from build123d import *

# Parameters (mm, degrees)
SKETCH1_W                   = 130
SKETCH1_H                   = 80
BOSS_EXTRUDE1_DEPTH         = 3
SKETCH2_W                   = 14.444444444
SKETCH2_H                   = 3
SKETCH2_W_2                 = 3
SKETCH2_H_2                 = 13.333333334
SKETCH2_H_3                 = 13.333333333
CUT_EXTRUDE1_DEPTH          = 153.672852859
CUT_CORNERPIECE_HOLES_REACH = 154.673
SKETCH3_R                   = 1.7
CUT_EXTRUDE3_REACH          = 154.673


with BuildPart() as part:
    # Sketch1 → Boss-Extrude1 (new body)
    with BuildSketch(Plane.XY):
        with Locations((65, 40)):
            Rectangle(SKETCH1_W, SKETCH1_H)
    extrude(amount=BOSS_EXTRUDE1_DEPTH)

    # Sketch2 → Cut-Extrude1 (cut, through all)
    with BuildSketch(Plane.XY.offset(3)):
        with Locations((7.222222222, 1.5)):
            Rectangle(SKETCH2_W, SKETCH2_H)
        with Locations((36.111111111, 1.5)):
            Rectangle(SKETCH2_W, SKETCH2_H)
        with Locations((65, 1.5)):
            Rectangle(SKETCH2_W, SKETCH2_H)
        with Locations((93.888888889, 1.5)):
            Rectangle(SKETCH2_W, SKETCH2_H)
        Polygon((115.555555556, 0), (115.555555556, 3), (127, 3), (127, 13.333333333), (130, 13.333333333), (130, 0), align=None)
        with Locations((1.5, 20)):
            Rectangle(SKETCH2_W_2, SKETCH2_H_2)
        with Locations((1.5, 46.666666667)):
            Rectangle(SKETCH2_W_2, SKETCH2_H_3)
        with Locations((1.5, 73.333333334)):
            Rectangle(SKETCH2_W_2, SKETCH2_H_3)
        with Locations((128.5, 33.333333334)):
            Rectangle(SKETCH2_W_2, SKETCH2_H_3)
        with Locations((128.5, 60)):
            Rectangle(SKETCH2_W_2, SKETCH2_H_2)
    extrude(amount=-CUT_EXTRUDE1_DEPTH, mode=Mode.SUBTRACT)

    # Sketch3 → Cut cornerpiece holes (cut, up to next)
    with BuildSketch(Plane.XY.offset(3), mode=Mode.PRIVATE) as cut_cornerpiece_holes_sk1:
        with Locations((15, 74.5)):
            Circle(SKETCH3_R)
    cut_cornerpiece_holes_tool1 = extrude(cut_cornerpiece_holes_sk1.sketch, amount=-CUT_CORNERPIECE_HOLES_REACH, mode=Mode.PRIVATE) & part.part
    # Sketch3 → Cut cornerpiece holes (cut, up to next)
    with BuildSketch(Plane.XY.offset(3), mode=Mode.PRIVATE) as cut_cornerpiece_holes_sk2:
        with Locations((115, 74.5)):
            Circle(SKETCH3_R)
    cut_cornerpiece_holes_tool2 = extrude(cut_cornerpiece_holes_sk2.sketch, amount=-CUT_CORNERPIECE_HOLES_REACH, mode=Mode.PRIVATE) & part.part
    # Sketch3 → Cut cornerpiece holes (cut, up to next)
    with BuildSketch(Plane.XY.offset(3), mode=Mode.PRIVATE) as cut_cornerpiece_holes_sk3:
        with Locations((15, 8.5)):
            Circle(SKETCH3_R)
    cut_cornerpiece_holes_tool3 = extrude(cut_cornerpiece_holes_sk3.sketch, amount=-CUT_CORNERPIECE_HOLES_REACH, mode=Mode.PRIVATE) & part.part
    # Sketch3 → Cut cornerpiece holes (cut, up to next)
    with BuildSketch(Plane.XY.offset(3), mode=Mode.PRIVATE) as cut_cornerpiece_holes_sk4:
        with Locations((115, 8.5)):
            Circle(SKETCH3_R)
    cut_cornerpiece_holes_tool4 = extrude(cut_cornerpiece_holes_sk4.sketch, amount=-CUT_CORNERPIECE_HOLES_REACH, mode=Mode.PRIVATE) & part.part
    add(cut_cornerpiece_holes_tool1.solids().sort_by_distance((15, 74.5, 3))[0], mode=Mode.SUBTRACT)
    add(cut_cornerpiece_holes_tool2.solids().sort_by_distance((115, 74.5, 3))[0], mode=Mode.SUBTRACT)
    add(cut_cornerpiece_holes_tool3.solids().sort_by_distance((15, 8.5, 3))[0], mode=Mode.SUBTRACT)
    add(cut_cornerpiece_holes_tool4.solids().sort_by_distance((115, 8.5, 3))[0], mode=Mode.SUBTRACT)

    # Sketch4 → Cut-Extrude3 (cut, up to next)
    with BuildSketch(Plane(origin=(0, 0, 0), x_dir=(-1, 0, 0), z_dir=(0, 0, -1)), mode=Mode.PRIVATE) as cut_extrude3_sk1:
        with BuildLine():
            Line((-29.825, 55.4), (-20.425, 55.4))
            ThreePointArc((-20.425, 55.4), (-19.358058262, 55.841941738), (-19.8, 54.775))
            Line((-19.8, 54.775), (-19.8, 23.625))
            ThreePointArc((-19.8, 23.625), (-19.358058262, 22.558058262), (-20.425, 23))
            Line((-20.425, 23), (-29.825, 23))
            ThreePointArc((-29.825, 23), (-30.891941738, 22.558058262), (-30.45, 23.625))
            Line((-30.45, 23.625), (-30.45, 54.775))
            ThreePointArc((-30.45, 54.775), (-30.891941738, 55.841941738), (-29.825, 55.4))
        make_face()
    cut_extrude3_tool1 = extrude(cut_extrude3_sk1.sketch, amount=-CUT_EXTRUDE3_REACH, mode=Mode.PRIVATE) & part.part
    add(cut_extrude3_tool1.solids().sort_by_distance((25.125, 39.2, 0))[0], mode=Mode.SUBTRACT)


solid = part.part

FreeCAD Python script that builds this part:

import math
import FreeCAD as App
import Part
import Sketcher

V = App.Vector
Q = App.Units.Quantity


def add_polygon(sketch, points):
    """Adds a closed chain of lines whose ends are joined by coincident constraints."""
    first, n = sketch.GeometryCount, len(points)
    for a, b in zip(points, points[1:] + points[:1]):
        sketch.addGeometry(Part.LineSegment(App.Vector(*a, 0), App.Vector(*b, 0)), False)
    for i in range(n):
        sketch.addConstraint(Sketcher.Constraint("Coincident", first + i, 2, first + (i + 1) % n, 1))

doc = App.newDocument("Part")
body = doc.addObject("PartDesign::Body", "Body")

# Sketch on XY plane
sketch1 = body.newObject("Sketcher::SketchObject", "Sketch")
sketch1.AttachmentSupport = (doc.getObject("XY_Plane"), [""])
sketch1.MapMode = "FlatFace"
add_polygon(sketch1, [(0, 80), (0, 0), (130, 0), (130, 80)])  # lines 0-3
sketch1.addConstraint([
    Sketcher.Constraint("Vertical", 0),
    Sketcher.Constraint("Horizontal", 1),
    Sketcher.Constraint("Vertical", 2),
    Sketcher.Constraint("Horizontal", 3),
    Sketcher.Constraint("Coincident", 0, 2, -1, 1),
    Sketcher.Constraint("DistanceX", 1, 1, 1, 2, Q("130 mm")),
    Sketcher.Constraint("DistanceY", 0, 2, 0, 1, Q("80 mm")),
])
pad1 = body.newObject("PartDesign::Pad", "Pad")
pad1.Profile = sketch1
pad1.Length = 3

# Sketch on XY plane
sketch2 = body.newObject("Sketcher::SketchObject", "Sketch001")
sketch2.AttachmentSupport = (doc.getObject("XY_Plane"), [""])
sketch2.MapMode = "FlatFace"
sketch2.AttachmentOffset = App.Placement(V(0, 0, 3), App.Rotation())
add_polygon(sketch2, [(0, 3), (0, 0), (14.444444, 0), (14.444444, 3)])  # lines 0-3
add_polygon(sketch2, [(28.888889, 3), (28.888889, 0), (43.333333, 0), (43.333333, 3)])  # lines 4-7
add_polygon(sketch2, [(57.777778, 3), (57.777778, 0), (72.222222, 0), (72.222222, 3)])  # lines 8-11
add_polygon(sketch2, [(86.666667, 3), (86.666667, 0), (101.111111, 0), (101.111111, 3)])  # lines 12-15
add_polygon(sketch2, [(115.555556, 3), (115.555556, 0), (130, 0), (130, 13.333333), (127, 13.333333), (127, 3)])  # lines 16-21
add_polygon(sketch2, [(0, 26.666667), (0, 13.333333), (3, 13.333333), (3, 26.666667)])  # lines 22-25
add_polygon(sketch2, [(0, 53.333333), (0, 40), (3, 40), (3, 53.333333)])  # lines 26-29
add_polygon(sketch2, [(0, 80), (0, 66.666667), (3, 66.666667), (3, 80)])  # lines 30-33
add_polygon(sketch2, [(127, 40), (127, 26.666667), (130, 26.666667), (130, 40)])  # lines 34-37
add_polygon(sketch2, [(127, 66.666667), (127, 53.333333), (130, 53.333333), (130, 66.666667)])  # lines 38-41
sketch2.addConstraint([
    Sketcher.Constraint("Vertical", 0),
    Sketcher.Constraint("Horizontal", 1),
    Sketcher.Constraint("Vertical", 2),
    Sketcher.Constraint("Horizontal", 3),
    Sketcher.Constraint("Vertical", 4),
    Sketcher.Constraint("Horizontal", 5),
    Sketcher.Constraint("Vertical", 6),
    Sketcher.Constraint("Horizontal", 7),
    Sketcher.Constraint("Vertical", 8),
    Sketcher.Constraint("Horizontal", 9),
    Sketcher.Constraint("Vertical", 10),
    Sketcher.Constraint("Horizontal", 11),
    Sketcher.Constraint("Vertical", 12),
    Sketcher.Constraint("Horizontal", 13),
    Sketcher.Constraint("Vertical", 14),
    Sketcher.Constraint("Horizontal", 15),
    Sketcher.Constraint("Vertical", 16),
    Sketcher.Constraint("Horizontal", 17),
    Sketcher.Constraint("Vertical", 18),
    Sketcher.Constraint("Horizontal", 19),
    Sketcher.Constraint("Vertical", 20),
    Sketcher.Constraint("Horizontal", 21),
    Sketcher.Constraint("Vertical", 22),
    Sketcher.Constraint("Horizontal", 23),
    Sketcher.Constraint("Vertical", 24),
    Sketcher.Constraint("Horizontal", 25),
    Sketcher.Constraint("Vertical", 26),
    Sketcher.Constraint("Horizontal", 27),
    Sketcher.Constraint("Vertical", 28),
    Sketcher.Constraint("Horizontal", 29),
    Sketcher.Constraint("Vertical", 30),
    Sketcher.Constraint("Horizontal", 31),
    Sketcher.Constraint("Vertical", 32),
    Sketcher.Constraint("Horizontal", 33),
    Sketcher.Constraint("Vertical", 34),
    Sketcher.Constraint("Horizontal", 35),
    Sketcher.Constraint("Vertical", 36),
    Sketcher.Constraint("Horizontal", 37),
    Sketcher.Constraint("Vertical", 38),
    Sketcher.Constraint("Horizontal", 39),
    Sketcher.Constraint("Vertical", 40),
    Sketcher.Constraint("Horizontal", 41),
    Sketcher.Constraint("Coincident", 0, 2, -1, 1),
    Sketcher.Constraint("PointOnObject", 4, 2, -1),
    Sketcher.Constraint("PointOnObject", 8, 2, -1),
    Sketcher.Constraint("PointOnObject", 12, 2, -1),
    Sketcher.Constraint("PointOnObject", 16, 2, -1),
    Sketcher.Constraint("PointOnObject", 22, 2, -2),
    Sketcher.Constraint("PointOnObject", 26, 2, -2),
    Sketcher.Constraint("PointOnObject", 30, 2, -2),
    Sketcher.Constraint("Horizontal", 3, 2, 6, 2),
    Sketcher.Constraint("Horizontal", 7, 2, 10, 2),
    Sketcher.Constraint("Horizontal", 11, 2, 14, 2),
    Sketcher.Constraint("Horizontal", 15, 2, 20, 2),
    Sketcher.Constraint("Horizontal", 19, 2, 22, 2),
    Sketcher.Constraint("Horizontal", 25, 2, 34, 2),
    Sketcher.Constraint("Horizontal", 27, 2, 36, 2),
    Sketcher.Constraint("Horizontal", 29, 2, 38, 2),
    Sketcher.Constraint("Horizontal", 31, 2, 40, 2),
    Sketcher.Constraint("Vertical", 24, 2, 27, 2),
    Sketcher.Constraint("Vertical", 28, 2, 31, 2),
    Sketcher.Constraint("Vertical", 20, 2, 34, 2),
    Sketcher.Constraint("Vertical", 18, 2, 35, 2),
    Sketcher.Constraint("Vertical", 37, 2, 38, 2),
    Sketcher.Constraint("Vertical", 36, 2, 39, 2),
    Sketcher.Constraint("Equal", 3, 5),
    Sketcher.Constraint("Equal", 7, 9),
    Sketcher.Constraint("Equal", 11, 13),
    Sketcher.Constraint("Equal", 15, 17),
    Sketcher.Constraint("Equal", 19, 23),
    Sketcher.Constraint("Equal", 41, 0),
    Sketcher.Constraint("Equal", 18, 22),
    Sketcher.Constraint("Equal", 24, 26),
    Sketcher.Constraint("Equal", 28, 30),
    Sketcher.Constraint("Equal", 32, 34),
    Sketcher.Constraint("Equal", 36, 38),
    Sketcher.Constraint("DistanceX", 19, 2, 19, 1, Q("3 mm")),
    Sketcher.Constraint("DistanceX", -1, 1, 17, 2, Q("130 mm")),
    Sketcher.Constraint("DistanceY", -1, 1, 26, 2, Q("40 mm")),
    Sketcher.Constraint("DistanceX", 1, 1, 1, 2, Q("14.444444 mm")),
    Sketcher.Constraint("DistanceX", -1, 1, 4, 2, Q("28.888889 mm")),
    Sketcher.Constraint("DistanceX", -1, 1, 13, 2, Q("101.111111 mm")),
    Sketcher.Constraint("DistanceX", 4, 2, 8, 2, Q("28.888889 mm")),
])
pocket1 = body.newObject("PartDesign::Pocket", "Pocket")
pocket1.Profile = sketch2
pocket1.Type = "ThroughAll"

# Sketch on XY plane
sketch3 = body.newObject("Sketcher::SketchObject", "Sketch002")
sketch3.AttachmentSupport = (doc.getObject("XY_Plane"), [""])
sketch3.MapMode = "FlatFace"
sketch3.AttachmentOffset = App.Placement(V(0, 0, 3), App.Rotation())
sketch3.addGeometry(Part.Circle(V(15, 74.5, 0), V(0, 0, 1), 1.7), False)
sketch3.addConstraint([
    Sketcher.Constraint("Diameter", 0, Q("3.4 mm")),
    Sketcher.Constraint("DistanceX", -1, 1, 0, 3, Q("15 mm")),
    Sketcher.Constraint("DistanceY", -1, 1, 0, 3, Q("74.5 mm")),
])
pocket2 = body.newObject("PartDesign::Pocket", "Pocket001")
pocket2.Profile = sketch3
pocket2.Type = "UpToFirst"

# Sketch on XY plane
sketch4 = body.newObject("Sketcher::SketchObject", "Sketch003")
sketch4.AttachmentSupport = (doc.getObject("XY_Plane"), [""])
sketch4.MapMode = "FlatFace"
sketch4.AttachmentOffset = App.Placement(V(0, 0, 3), App.Rotation())
sketch4.addGeometry(Part.Circle(V(115, 74.5, 0), V(0, 0, 1), 1.7), False)
sketch4.addConstraint([
    Sketcher.Constraint("Diameter", 0, Q("3.4 mm")),
    Sketcher.Constraint("DistanceX", -1, 1, 0, 3, Q("115 mm")),
    Sketcher.Constraint("DistanceY", -1, 1, 0, 3, Q("74.5 mm")),
])
pocket3 = body.newObject("PartDesign::Pocket", "Pocket002")
pocket3.Profile = sketch4
pocket3.Type = "UpToFirst"

# Sketch on XY plane
sketch5 = body.newObject("Sketcher::SketchObject", "Sketch004")
sketch5.AttachmentSupport = (doc.getObject("XY_Plane"), [""])
sketch5.MapMode = "FlatFace"
sketch5.AttachmentOffset = App.Placement(V(0, 0, 3), App.Rotation())
sketch5.addGeometry(Part.Circle(V(15, 8.5, 0), V(0, 0, 1), 1.7), False)
sketch5.addConstraint([
    Sketcher.Constraint("Diameter", 0, Q("3.4 mm")),
    Sketcher.Constraint("DistanceX", -1, 1, 0, 3, Q("15 mm")),
    Sketcher.Constraint("DistanceY", -1, 1, 0, 3, Q("8.5 mm")),
])
pocket4 = body.newObject("PartDesign::Pocket", "Pocket003")
pocket4.Profile = sketch5
pocket4.Type = "UpToFirst"

# Sketch on XY plane
sketch6 = body.newObject("Sketcher::SketchObject", "Sketch005")
sketch6.AttachmentSupport = (doc.getObject("XY_Plane"), [""])
sketch6.MapMode = "FlatFace"
sketch6.AttachmentOffset = App.Placement(V(0, 0, 3), App.Rotation())
sketch6.addGeometry(Part.Circle(V(115, 8.5, 0), V(0, 0, 1), 1.7), False)
sketch6.addConstraint([
    Sketcher.Constraint("Diameter", 0, Q("3.4 mm")),
    Sketcher.Constraint("DistanceX", -1, 1, 0, 3, Q("115 mm")),
    Sketcher.Constraint("DistanceY", -1, 1, 0, 3, Q("8.5 mm")),
])
pocket5 = body.newObject("PartDesign::Pocket", "Pocket004")
pocket5.Profile = sketch6
pocket5.Type = "UpToFirst"

# Sketch on XY plane
sketch7 = body.newObject("Sketcher::SketchObject", "Sketch006")
sketch7.AttachmentSupport = (doc.getObject("XY_Plane"), [""])
sketch7.MapMode = "FlatFace"
sketch7.addGeometry([
    Part.LineSegment(V(20.425, 55.4, 0), V(29.825, 55.4, 0)),  # 0
    Part.ArcOfCircle(Part.Circle(V(30.45, 55.4, 0), V(0, 0, 1), 0.625), math.radians(-90), math.radians(180)),  # 1
    Part.LineSegment(V(30.45, 54.775, 0), V(30.45, 23.625, 0)),  # 2
    Part.ArcOfCircle(Part.Circle(V(30.45, 23, 0), V(0, 0, 1), 0.625), math.radians(180), math.radians(450)),  # 3
    Part.LineSegment(V(29.825, 23, 0), V(20.425, 23, 0)),  # 4
    Part.ArcOfCircle(Part.Circle(V(19.8, 23, 0), V(0, 0, 1), 0.625), math.radians(90), math.radians(360)),  # 5
    Part.LineSegment(V(19.8, 23.625, 0), V(19.8, 54.775, 0)),  # 6
    Part.ArcOfCircle(Part.Circle(V(19.8, 55.4, 0), V(0, 0, 1), 0.625), math.radians(0), math.radians(270)),  # 7
], False)
sketch7.addConstraint([
    Sketcher.Constraint("Coincident", 0, 2, 1, 2),
    Sketcher.Constraint("Coincident", 1, 1, 2, 1),
    Sketcher.Constraint("Coincident", 2, 2, 3, 2),
    Sketcher.Constraint("Coincident", 3, 1, 4, 1),
    Sketcher.Constraint("Coincident", 4, 2, 5, 2),
    Sketcher.Constraint("Coincident", 5, 1, 6, 1),
    Sketcher.Constraint("Coincident", 6, 2, 7, 2),
    Sketcher.Constraint("Coincident", 7, 1, 0, 1),
    Sketcher.Constraint("Horizontal", 0),
    Sketcher.Constraint("Vertical", 2),
    Sketcher.Constraint("Horizontal", 4),
    Sketcher.Constraint("Vertical", 6),
    Sketcher.Constraint("Equal", 1, 3),
    Sketcher.Constraint("Equal", 3, 5),
    Sketcher.Constraint("Equal", 5, 7),
    Sketcher.Constraint("Horizontal", 3, 3, 5, 3),
    Sketcher.Constraint("Horizontal", 1, 3, 7, 3),
    Sketcher.Constraint("Horizontal", 7, 3, 0, 2),
    Sketcher.Constraint("Horizontal", 5, 3, 3, 1),
    Sketcher.Constraint("Vertical", 1, 3, 3, 3),
    Sketcher.Constraint("Vertical", 5, 3, 7, 3),
    Sketcher.Constraint("Vertical", 3, 3, 1, 1),
    Sketcher.Constraint("Vertical", 7, 3, 5, 1),
    Sketcher.Constraint("DistanceX", 0, 1, 0, 2, Q("9.4 mm")),
    Sketcher.Constraint("DistanceY", -1, 1, 3, 3, Q("23 mm")),
    Sketcher.Constraint("Radius", 1, Q("0.625 mm")),
    Sketcher.Constraint("DistanceY", 2, 2, 2, 1, Q("31.15 mm")),
    Sketcher.Constraint("DistanceX", -1, 1, 5, 3, Q("19.8 mm")),
])
pocket6 = body.newObject("PartDesign::Pocket", "Pocket005")
pocket6.Profile = sketch7
pocket6.Type = "UpToFirst"
pocket6.Reversed = True

doc.recompute()
